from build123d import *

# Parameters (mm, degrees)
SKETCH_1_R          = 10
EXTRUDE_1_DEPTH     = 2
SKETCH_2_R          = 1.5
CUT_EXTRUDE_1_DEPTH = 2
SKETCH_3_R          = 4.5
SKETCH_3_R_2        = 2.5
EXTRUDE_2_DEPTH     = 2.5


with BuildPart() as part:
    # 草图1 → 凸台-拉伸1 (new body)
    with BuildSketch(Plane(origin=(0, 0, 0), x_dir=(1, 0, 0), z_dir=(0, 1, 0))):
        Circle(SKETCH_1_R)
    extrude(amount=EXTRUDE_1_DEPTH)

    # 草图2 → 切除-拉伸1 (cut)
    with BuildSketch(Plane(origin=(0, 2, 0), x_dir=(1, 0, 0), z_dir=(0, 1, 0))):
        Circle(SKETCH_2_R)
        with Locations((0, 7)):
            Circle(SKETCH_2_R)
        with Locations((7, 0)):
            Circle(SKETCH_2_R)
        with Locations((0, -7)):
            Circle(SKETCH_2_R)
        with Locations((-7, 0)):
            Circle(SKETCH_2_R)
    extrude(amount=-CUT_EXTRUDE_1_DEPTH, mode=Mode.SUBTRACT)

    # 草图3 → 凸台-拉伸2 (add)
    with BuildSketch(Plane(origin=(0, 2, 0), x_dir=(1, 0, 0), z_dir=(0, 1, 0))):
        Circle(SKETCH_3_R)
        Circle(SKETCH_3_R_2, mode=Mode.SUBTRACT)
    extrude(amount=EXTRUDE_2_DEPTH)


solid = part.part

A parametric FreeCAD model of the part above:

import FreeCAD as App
import Part
import Sketcher

V = App.Vector

doc = App.newDocument("Part")
params = doc.addObject("Spreadsheet::Sheet", "Params")
for row, (alias, value) in enumerate([
    ("sketch1_diameter", "20 mm"),
    ("pad1_length", "2 mm"),
    ("sketch2_diameter", "3 mm"),
    ("pocket1_length", "2 mm"),
    ("sketch3_diameter", "9 mm"),
    ("sketch3_diameter2", "5 mm"),
    ("pad2_length", "2.5 mm"),
], start=1):
    params.set(f"A{row}", alias)
    params.set(f"B{row}", "=" + value)
    params.setAlias(f"B{row}", alias)

body = doc.addObject("PartDesign::Body", "Body")

# Sketch on XZ plane
sketch1 = doc.addObject("Sketcher::SketchObject", "Sketch")
body.addObject(sketch1)
sketch1.AttachmentSupport = (doc.XZ_Plane, [""])
sketch1.MapMode = "FlatFace"
sketch1.addGeometry(Part.Circle(V(0, 0, 0), V(0, 0, 1), 10), False)
sketch1.addConstraint([
    Sketcher.Constraint("Coincident", 0, 3, -1, 1),
    Sketcher.Constraint("Diameter", 0, 20.0),
])
sketch1.setExpression("Constraints[1]", "Params.sketch1_diameter")
pad1 = doc.addObject("PartDesign::Pad", "Pad")
body.addObject(pad1)
pad1.Profile = sketch1
pad1.setExpression("Length", "Params.pad1_length")
pad1.Reversed = True

# Sketch on XZ plane
sketch2 = doc.addObject("Sketcher::SketchObject", "Sketch001")
body.addObject(sketch2)
sketch2.AttachmentSupport = (doc.XZ_Plane, [""])
sketch2.MapMode = "FlatFace"
sketch2.AttachmentOffset = App.Placement(V(0, 0, -2), App.Rotation())
sketch2.addGeometry([
    Part.Circle(V(0, 0, 0), V(0, 0, 1), 1.5),  # 0
    Part.Circle(V(0, -7, 0), V(0, 0, 1), 1.5),  # 1
    Part.Circle(V(7, 0, 0), V(0, 0, 1), 1.5),  # 2
    Part.Circle(V(0, 7, 0), V(0, 0, 1), 1.5),  # 3
    Part.Circle(V(-7, 0, 0), V(0, 0, 1), 1.5),  # 4
], False)
sketch2.addConstraint([
    Sketcher.Constraint("Coincident", 0, 3, -1, 1),
    Sketcher.Constraint("Equal", 0, 1),
    Sketcher.Constraint("Equal", 1, 2),
    Sketcher.Constraint("Equal", 2, 3),
    Sketcher.Constraint("Equal", 3, 4),
    Sketcher.Constraint("Symmetric", 1, 3, 3, 3, -1, 1),
    Sketcher.Constraint("Symmetric", 2, 3, 4, 3, -1, 1),
    Sketcher.Constraint("PointOnObject", 1, 3, -2),
    Sketcher.Constraint("PointOnObject", 2, 3, -1),
    Sketcher.Constraint("Diameter", 0, 3.0),
    Sketcher.Constraint("DistanceY", 1, 3, -1, 1, 7.0),
    Sketcher.Constraint("DistanceX", -1, 1, 2, 3, 7.0),
])
sketch2.setExpression("Constraints[9]", "Params.sketch2_diameter")
pocket1 = doc.addObject("PartDesign::Pocket", "Pocket")
body.addObject(pocket1)
pocket1.Profile = sketch2
pocket1.setExpression("Length", "Params.pocket1_length")
pocket1.Reversed = True

# Sketch on XZ plane
sketch3 = doc.addObject("Sketcher::SketchObject", "Sketch002")
body.addObject(sketch3)
sketch3.AttachmentSupport = (doc.XZ_Plane, [""])
sketch3.MapMode = "FlatFace"
sketch3.AttachmentOffset = App.Placement(V(0, 0, -2), App.Rotation())
sketch3.addGeometry([
    Part.Circle(V(0, 0, 0), V(0, 0, 1), 4.5),
    Part.Circle(V(0, 0, 0), V(0, 0, 1), 2.5),
], False)
sketch3.addConstraint([
    Sketcher.Constraint("Coincident", 0, 3, -1, 1),
    Sketcher.Constraint("Coincident", 1, 3, -1, 1),
    Sketcher.Constraint("Diameter", 0, 9.0),
    Sketcher.Constraint("Diameter", 1, 5.0),
])
sketch3.setExpression("Constraints[2]", "Params.sketch3_diameter")
sketch3.setExpression("Constraints[3]", "Params.sketch3_diameter2")
pad2 = doc.addObject("PartDesign::Pad", "Pad001")
body.addObject(pad2)
pad2.Profile = sketch3
pad2.setExpression("Length", "Params.pad2_length")
pad2.Reversed = True

doc.recompute()
